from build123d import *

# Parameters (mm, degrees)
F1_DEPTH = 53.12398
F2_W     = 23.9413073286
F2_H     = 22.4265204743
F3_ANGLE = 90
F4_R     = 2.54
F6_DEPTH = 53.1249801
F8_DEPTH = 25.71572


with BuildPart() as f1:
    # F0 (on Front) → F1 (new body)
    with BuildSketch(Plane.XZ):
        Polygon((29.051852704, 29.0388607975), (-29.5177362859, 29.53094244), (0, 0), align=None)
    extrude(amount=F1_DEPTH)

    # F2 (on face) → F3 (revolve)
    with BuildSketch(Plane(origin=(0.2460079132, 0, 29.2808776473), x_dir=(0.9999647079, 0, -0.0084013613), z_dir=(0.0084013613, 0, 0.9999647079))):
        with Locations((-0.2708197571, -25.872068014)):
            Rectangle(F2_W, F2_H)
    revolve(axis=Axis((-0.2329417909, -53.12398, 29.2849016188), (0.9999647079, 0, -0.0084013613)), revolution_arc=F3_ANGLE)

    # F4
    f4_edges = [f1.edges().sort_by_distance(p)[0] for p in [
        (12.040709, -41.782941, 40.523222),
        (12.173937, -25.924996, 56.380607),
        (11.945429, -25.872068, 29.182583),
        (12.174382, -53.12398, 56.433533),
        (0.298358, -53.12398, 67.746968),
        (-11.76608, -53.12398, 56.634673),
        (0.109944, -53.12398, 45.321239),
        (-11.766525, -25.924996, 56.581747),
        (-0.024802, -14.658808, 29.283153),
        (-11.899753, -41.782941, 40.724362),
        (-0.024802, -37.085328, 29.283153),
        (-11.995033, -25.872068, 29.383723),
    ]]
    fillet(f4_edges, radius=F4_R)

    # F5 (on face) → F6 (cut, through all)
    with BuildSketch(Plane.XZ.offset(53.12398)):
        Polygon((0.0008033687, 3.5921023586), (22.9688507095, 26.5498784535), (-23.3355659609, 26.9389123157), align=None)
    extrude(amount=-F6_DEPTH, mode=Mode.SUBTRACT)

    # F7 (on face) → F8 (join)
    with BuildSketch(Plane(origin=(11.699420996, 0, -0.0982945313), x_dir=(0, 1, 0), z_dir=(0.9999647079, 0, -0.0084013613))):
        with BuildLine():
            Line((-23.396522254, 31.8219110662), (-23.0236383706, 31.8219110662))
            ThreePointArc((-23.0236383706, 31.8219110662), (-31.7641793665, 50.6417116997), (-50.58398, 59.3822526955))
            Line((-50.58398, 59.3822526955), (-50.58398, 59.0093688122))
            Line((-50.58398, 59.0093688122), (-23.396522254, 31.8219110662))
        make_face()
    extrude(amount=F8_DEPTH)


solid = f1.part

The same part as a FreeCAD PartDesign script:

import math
import FreeCAD as App
import Part
import Sketcher

V = App.Vector
Q = App.Units.Quantity


def edges_at(feature, points):
    """Names of the edges that pass closest to the given points."""
    edges = feature.Shape.Edges
    near = lambda p: min(range(len(edges)), key=lambda i: edges[i].distToShape(Part.Vertex(*p))[0])
    return sorted({f"Edge{near(p) + 1}" for p in points})


def add_polygon(sketch, points):
    """Adds a closed chain of lines whose ends are joined by coincident constraints."""
    first, n = sketch.GeometryCount, len(points)
    for a, b in zip(points, points[1:] + points[:1]):
        sketch.addGeometry(Part.LineSegment(App.Vector(*a, 0), App.Vector(*b, 0)), False)
    for i in range(n):
        sketch.addConstraint(Sketcher.Constraint("Coincident", first + i, 2, first + (i + 1) % n, 1))

doc = App.newDocument("Part")
body = doc.addObject("PartDesign::Body", "Body")

sketch1 = body.newObject("Sketcher::SketchObject", "Sketch")
sketch1.AttachmentSupport = (doc.getObject("XZ_Plane"), [""])
sketch1.MapMode = "FlatFace"
add_polygon(sketch1, [(29, 29), (-30, 30), (0, 0)])
sketch1.addConstraint([
    Sketcher.Constraint("Coincident", 1, 2, -1, 1),
    Sketcher.Constraint("Perpendicular", 1, 2),
    Sketcher.Constraint("Distance", 2, Q("41.076338 mm")),
    Sketcher.Constraint("DistanceY", -1, 1, 2, 2, Q("29.038861 mm")),
    Sketcher.Constraint("DistanceX", 0, 2, 2, 2, Q("58.569589 mm")),
])
pad1 = body.newObject("PartDesign::Pad", "Pad")
pad1.Profile = sketch1
pad1.Length = 53.12398

sketch2 = body.newObject("Sketcher::SketchObject", "Sketch001")
sketch2.Placement = App.Placement(V(0.246008, 0, 29.280878), App.Rotation(V(0.999964708, 0, -0.008401361), V(0, 1, 0), V(0.008401361, 0, 0.999964708), "ZXY"))
add_polygon(sketch2, [(-12, -15), (-12, -37), (12, -37), (12, -15)])
sketch2.addGeometry(Part.LineSegment(V(-12, -53, 0), V(12, -53, 0)), True)
sketch2.addConstraint([
    Sketcher.Constraint("Vertical", 0),
    Sketcher.Constraint("Horizontal", 1),
    Sketcher.Constraint("Vertical", 2),
    Sketcher.Constraint("Horizontal", 3),
    Sketcher.Constraint("Horizontal", 4),
    Sketcher.Constraint("Vertical", 3, 2, 4, 1),
    Sketcher.Constraint("Vertical", 2, 2, 4, 2),
    Sketcher.Constraint("DistanceY", 0, 2, 0, 1, Q("22.42652 mm")),
    Sketcher.Constraint("DistanceX", 1, 1, 1, 2, Q("23.941307 mm")),
    Sketcher.Constraint("DistanceY", 0, 2, -1, 1, Q("37.085328 mm")),
    Sketcher.Constraint("DistanceY", 4, 1, -1, 1, Q("53.12398 mm")),
    Sketcher.Constraint("DistanceX", 0, 2, -1, 1, Q("12.241473 mm")),
])
revolution = body.newObject("PartDesign::Revolution", "Revolution")
revolution.Profile = sketch2
revolution.ReferenceAxis = (sketch2, ["Axis0"])
revolution.Angle = 90
doc.recompute()

fillet = body.newObject("PartDesign::Fillet", "Fillet")
fillet.Base = (revolution, edges_at(revolution, [
    (12.041, -41.783, 40.523),
    (12.174, -25.925, 56.381),
    (11.945, -25.872, 29.183),
    (12.174, -53.124, 56.434),
    (0.298, -53.124, 67.747),
    (-11.766, -53.124, 56.635),
    (0.11, -53.124, 45.321),
    (-11.767, -25.925, 56.582),
    (-0.025, -14.659, 29.283),
    (-11.9, -41.783, 40.724),
    (-0.025, -37.085, 29.283),
    (-11.995, -25.872, 29.384),
]))
fillet.Radius = Q("0.1 in")

sketch3 = body.newObject("Sketcher::SketchObject", "Sketch002")
sketch3.AttachmentSupport = (doc.getObject("XZ_Plane"), [""])
sketch3.MapMode = "FlatFace"
sketch3.AttachmentOffset = App.Placement(V(0, 0, 53.12398), App.Rotation())
add_polygon(sketch3, [(0, 4), (23, 27), (-23, 27)])
sketch3.addConstraint([
    Sketcher.Constraint("Perpendicular", 0, 2),
    Sketcher.Constraint("Distance", 0, Q("32.474462 mm")),
    Sketcher.Constraint("Distance", 1, Q("46.306051 mm")),
    Sketcher.Constraint("DistanceX", -1, 1, 0, 2, Q("22.968851 mm")),
    Sketcher.Constraint("DistanceY", -1, 1, 0, 2, Q("26.549878 mm")),
    Sketcher.Constraint("DistanceX", 1, 2, 2, 2, Q("23.336369 mm")),
])
pocket1 = body.newObject("PartDesign::Pocket", "Pocket")
pocket1.Profile = sketch3
pocket1.Type = "ThroughAll"

sketch4 = body.newObject("Sketcher::SketchObject", "Sketch003")
sketch4.Placement = App.Placement(V(11.699421, 0, -0.098295), App.Rotation(V(0, 1, 0), V(0.008401361, 0, 0.999964708), V(0.999964708, 0, -0.008401361), "ZXY"))
sketch4.addGeometry([
    Part.LineSegment(V(-23.4, 31.82, 0), V(-23.02, 31.82, 0)),
    Part.ArcOfCircle(Part.Circle(V(-53.12, 29.28, 0), V(0, 0, 1), 30.21), math.radians(5), math.radians(85)),
    Part.LineSegment(V(-50.58, 59.38, 0), V(-50.58, 59.01, 0)),
    Part.LineSegment(V(-50.58, 59.01, 0), V(-23.4, 31.82, 0)),
], False)
sketch4.addConstraint([
    Sketcher.Constraint("Coincident", 0, 2, 1, 1),
    Sketcher.Constraint("Coincident", 1, 2, 2, 1),
    Sketcher.Constraint("Coincident", 2, 2, 3, 1),
    Sketcher.Constraint("Coincident", 3, 2, 0, 1),
    Sketcher.Constraint("Horizontal", 0),
    Sketcher.Constraint("Vertical", 2),
    Sketcher.Constraint("Equal", 0, 2),
    Sketcher.Constraint("Angle", 3, Q("-45 deg")),
    Sketcher.Constraint("DistanceY", 1, 3, 0, 2, Q("0.1 in")),
    Sketcher.Constraint("Radius", 1, Q("30.20732 mm")),
    Sketcher.Constraint("Distance", 3, Q("38.448871 mm")),
    Sketcher.Constraint("DistanceX", 1, 3, -1, 1, Q("53.12398 mm")),
    Sketcher.Constraint("DistanceY", -1, 1, 1, 3, Q("29.281911 mm")),
])
pad2 = body.newObject("PartDesign::Pad", "Pad001")
pad2.Profile = sketch4
pad2.Length = 25.71572

doc.recompute()
